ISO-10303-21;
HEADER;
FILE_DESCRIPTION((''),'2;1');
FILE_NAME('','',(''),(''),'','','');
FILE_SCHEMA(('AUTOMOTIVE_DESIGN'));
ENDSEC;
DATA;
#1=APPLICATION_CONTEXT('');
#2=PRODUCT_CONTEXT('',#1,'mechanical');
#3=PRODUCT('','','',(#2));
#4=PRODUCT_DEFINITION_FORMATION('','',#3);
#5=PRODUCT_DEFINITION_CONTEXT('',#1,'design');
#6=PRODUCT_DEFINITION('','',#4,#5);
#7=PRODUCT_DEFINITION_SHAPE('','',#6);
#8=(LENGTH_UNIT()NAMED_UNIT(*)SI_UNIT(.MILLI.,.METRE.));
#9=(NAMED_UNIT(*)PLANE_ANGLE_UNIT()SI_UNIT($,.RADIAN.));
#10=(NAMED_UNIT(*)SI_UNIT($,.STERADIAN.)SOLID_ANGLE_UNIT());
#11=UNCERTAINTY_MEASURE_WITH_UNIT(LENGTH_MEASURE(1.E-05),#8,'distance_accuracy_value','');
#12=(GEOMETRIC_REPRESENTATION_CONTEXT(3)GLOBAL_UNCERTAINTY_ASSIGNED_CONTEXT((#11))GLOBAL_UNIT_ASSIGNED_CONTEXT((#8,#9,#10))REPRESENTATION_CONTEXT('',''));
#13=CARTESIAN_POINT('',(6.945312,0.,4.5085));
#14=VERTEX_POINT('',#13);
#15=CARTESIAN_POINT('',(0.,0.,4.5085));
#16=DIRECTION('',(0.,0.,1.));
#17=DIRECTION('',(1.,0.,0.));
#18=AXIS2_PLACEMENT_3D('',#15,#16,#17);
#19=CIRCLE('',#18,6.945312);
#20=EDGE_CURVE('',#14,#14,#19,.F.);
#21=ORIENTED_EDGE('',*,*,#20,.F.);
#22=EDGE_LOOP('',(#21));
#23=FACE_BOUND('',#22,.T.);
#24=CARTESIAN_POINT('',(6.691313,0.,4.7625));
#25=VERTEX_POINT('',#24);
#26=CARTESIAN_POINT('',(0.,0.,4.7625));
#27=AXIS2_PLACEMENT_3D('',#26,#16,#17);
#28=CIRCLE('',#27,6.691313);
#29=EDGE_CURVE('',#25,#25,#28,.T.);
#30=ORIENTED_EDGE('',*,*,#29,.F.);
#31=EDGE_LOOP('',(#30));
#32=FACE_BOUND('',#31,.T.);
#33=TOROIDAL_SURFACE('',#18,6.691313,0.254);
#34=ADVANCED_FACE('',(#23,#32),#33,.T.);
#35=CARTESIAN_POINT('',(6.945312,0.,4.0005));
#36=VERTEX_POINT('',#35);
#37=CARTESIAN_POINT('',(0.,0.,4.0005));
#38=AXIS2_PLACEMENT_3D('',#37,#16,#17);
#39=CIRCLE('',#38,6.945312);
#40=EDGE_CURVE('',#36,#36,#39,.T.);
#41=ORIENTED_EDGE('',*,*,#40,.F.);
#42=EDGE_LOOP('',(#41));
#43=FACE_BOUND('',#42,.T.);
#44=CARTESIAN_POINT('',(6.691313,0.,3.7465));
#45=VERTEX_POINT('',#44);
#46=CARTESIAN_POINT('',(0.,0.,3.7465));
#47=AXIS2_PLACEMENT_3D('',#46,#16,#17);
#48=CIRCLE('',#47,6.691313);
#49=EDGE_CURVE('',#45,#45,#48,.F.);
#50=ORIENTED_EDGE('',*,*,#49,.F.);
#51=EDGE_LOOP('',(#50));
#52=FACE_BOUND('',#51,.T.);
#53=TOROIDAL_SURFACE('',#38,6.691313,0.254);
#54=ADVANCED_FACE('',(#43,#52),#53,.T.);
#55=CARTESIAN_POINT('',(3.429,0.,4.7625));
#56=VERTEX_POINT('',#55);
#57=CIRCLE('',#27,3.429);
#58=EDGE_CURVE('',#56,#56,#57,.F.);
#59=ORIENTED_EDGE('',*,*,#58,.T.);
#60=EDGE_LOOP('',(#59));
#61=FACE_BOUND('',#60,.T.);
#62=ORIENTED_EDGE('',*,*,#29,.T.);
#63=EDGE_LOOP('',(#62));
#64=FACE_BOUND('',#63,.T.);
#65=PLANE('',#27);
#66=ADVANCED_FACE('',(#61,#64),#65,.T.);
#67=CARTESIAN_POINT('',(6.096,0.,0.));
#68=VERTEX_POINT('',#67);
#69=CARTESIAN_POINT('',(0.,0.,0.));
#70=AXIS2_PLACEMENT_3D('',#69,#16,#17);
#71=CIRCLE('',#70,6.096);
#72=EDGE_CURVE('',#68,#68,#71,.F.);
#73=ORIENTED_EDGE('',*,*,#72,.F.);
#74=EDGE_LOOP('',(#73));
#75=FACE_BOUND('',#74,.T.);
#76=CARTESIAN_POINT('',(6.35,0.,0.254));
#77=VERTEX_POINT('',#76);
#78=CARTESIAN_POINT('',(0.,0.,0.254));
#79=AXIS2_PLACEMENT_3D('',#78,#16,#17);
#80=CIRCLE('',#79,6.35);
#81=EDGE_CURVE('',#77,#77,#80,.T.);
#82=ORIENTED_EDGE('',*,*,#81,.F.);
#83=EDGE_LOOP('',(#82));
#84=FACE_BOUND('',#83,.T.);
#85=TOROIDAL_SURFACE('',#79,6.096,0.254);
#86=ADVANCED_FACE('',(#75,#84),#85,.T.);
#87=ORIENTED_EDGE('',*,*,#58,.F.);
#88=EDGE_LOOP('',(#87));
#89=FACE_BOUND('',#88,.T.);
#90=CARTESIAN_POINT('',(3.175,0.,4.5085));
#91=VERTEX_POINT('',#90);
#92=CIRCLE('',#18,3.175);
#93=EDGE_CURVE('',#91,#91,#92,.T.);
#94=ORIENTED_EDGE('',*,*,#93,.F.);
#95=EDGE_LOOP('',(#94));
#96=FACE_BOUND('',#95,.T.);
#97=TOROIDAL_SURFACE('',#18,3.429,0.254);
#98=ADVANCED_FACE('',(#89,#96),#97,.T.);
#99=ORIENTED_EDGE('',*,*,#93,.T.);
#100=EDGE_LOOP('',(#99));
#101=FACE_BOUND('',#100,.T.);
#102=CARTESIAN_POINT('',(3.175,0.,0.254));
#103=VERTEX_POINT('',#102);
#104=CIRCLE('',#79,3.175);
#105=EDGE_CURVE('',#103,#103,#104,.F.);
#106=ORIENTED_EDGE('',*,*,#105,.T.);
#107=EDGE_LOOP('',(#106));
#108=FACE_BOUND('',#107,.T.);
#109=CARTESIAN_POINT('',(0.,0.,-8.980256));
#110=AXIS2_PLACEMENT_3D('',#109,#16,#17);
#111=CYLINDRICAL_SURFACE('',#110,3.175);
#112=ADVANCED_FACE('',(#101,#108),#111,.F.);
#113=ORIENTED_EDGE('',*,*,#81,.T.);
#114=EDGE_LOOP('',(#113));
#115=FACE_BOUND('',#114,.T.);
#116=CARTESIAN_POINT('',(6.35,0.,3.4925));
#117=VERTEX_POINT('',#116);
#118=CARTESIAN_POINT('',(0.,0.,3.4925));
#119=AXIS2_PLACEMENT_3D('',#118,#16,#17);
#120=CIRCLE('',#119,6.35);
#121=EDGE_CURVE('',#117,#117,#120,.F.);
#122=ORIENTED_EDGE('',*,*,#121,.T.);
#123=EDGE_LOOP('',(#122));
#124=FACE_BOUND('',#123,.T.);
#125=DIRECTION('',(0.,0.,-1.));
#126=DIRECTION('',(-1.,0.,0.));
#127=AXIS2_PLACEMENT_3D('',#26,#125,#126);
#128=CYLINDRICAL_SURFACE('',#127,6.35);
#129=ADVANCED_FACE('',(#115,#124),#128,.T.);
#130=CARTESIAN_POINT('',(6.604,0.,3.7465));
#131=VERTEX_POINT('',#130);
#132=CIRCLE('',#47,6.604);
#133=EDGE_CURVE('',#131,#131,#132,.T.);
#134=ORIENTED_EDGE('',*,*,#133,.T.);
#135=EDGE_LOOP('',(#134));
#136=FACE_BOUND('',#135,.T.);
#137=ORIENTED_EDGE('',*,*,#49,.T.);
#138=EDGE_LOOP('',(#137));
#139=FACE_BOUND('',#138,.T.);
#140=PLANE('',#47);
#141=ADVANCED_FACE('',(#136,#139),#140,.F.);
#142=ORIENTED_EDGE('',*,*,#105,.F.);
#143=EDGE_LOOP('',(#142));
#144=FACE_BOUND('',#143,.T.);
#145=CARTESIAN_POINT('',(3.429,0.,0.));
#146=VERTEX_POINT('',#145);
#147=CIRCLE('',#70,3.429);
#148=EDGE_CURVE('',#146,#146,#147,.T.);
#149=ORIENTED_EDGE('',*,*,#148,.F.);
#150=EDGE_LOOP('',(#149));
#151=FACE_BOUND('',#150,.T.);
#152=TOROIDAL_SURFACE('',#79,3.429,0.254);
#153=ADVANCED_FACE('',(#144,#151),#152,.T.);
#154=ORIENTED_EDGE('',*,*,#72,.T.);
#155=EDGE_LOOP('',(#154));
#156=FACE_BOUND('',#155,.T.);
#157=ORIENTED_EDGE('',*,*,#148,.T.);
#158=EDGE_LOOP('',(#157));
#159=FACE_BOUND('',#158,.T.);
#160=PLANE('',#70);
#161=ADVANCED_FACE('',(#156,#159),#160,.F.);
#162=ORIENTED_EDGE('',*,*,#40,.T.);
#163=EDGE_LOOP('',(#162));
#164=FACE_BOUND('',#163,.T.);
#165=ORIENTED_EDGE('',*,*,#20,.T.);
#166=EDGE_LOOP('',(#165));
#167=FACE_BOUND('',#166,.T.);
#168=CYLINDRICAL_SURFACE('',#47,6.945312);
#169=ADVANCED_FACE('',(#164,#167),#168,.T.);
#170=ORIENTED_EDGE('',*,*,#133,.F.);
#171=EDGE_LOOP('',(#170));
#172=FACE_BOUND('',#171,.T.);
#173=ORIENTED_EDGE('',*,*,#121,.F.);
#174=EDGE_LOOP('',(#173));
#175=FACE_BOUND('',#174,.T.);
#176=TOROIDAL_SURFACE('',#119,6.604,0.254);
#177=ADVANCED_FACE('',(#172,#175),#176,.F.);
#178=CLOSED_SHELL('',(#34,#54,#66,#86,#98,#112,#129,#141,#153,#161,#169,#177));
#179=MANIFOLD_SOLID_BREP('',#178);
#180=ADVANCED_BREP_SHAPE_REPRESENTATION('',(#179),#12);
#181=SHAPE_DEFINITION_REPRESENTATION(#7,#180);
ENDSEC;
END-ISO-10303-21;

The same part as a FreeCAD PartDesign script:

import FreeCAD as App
import Part
import Sketcher
from FreeCAD import Vector
Q = App.Units.Quantity


def edges_at(feature, points):
    """Names of the edges that pass closest to the given points."""
    edges = feature.Shape.Edges
    near = lambda p: min(range(len(edges)), key=lambda i: edges[i].distToShape(Part.Vertex(*p))[0])
    return sorted({f"Edge{near(p) + 1}" for p in points})

doc = App.newDocument("Part")
body = doc.addObject("PartDesign::Body", "Body")

sketch1 = doc.addObject("Sketcher::SketchObject", "Sketch")
body.addObject(sketch1)
sketch1.AttachmentSupport = (doc.XY_Plane, [""])
sketch1.MapMode = "FlatFace"
sketch1.addGeometry(Part.Circle(Vector(0, 0, 0), Vector(0, 0, 1), 6), False)
sketch1.addConstraint([
    Sketcher.Constraint("Coincident", 0, 3, -1, 1),
    Sketcher.Constraint("Diameter", 0, Q("0.5 in")),
])
pad1 = doc.addObject("PartDesign::Pad", "Pad")
body.addObject(pad1)
pad1.Profile = sketch1
pad1.Length = Q("0.1875 in")

sketch2 = doc.addObject("Sketcher::SketchObject", "Sketch001")
body.addObject(sketch2)
sketch2.AttachmentSupport = (doc.XY_Plane, [""])
sketch2.MapMode = "FlatFace"
sketch2.AttachmentOffset = App.Placement(Vector(0, 0, 0.1875 * 25.4), App.Rotation())
sketch2.addGeometry(Part.Circle(Vector(0, 0, 0), Vector(0, 0, 1), 7), False)
sketch2.addConstraint([
    Sketcher.Constraint("Coincident", 0, 3, -1, 1),
    Sketcher.Constraint("Diameter", 0, Q("0.546875 in")),
])
pad2 = doc.addObject("PartDesign::Pad", "Pad001")
body.addObject(pad2)
pad2.Profile = sketch2
pad2.Length = Q("0.04 in")
pad2.Reversed = True

sketch3 = doc.addObject("Sketcher::SketchObject", "Sketch002")
body.addObject(sketch3)
sketch3.AttachmentSupport = (doc.XY_Plane, [""])
sketch3.MapMode = "FlatFace"
sketch3.AttachmentOffset = App.Placement(Vector(0, 0, 0.1875 * 25.4), App.Rotation())
sketch3.addGeometry(Part.Circle(Vector(0, 0, 0), Vector(0, 0, 1), 3.2), False)
sketch3.addConstraint([
    Sketcher.Constraint("Coincident", 0, 3, -1, 1),
    Sketcher.Constraint("Diameter", 0, Q("0.25 in")),
])
pocket1 = doc.addObject("PartDesign::Pocket", "Pocket")
body.addObject(pocket1)
pocket1.Profile = sketch3
pocket1.Length = Q("0.1875 in")
doc.recompute()

fillet = doc.addObject("PartDesign::Fillet", "Fillet")
body.addObject(fillet)
fillet.Base = (pocket1, edges_at(pocket1, [
    (-3.175, 0, 4.763),
    (-3.175, 0, 0),
    (-6.35, 0, 0),
    (-6.35, 0, 3.747),
    (-6.945, 0, 3.747),
    (-6.945, 0, 4.763),
]))
fillet.Radius = Q("0.01 in")

doc.recompute()
